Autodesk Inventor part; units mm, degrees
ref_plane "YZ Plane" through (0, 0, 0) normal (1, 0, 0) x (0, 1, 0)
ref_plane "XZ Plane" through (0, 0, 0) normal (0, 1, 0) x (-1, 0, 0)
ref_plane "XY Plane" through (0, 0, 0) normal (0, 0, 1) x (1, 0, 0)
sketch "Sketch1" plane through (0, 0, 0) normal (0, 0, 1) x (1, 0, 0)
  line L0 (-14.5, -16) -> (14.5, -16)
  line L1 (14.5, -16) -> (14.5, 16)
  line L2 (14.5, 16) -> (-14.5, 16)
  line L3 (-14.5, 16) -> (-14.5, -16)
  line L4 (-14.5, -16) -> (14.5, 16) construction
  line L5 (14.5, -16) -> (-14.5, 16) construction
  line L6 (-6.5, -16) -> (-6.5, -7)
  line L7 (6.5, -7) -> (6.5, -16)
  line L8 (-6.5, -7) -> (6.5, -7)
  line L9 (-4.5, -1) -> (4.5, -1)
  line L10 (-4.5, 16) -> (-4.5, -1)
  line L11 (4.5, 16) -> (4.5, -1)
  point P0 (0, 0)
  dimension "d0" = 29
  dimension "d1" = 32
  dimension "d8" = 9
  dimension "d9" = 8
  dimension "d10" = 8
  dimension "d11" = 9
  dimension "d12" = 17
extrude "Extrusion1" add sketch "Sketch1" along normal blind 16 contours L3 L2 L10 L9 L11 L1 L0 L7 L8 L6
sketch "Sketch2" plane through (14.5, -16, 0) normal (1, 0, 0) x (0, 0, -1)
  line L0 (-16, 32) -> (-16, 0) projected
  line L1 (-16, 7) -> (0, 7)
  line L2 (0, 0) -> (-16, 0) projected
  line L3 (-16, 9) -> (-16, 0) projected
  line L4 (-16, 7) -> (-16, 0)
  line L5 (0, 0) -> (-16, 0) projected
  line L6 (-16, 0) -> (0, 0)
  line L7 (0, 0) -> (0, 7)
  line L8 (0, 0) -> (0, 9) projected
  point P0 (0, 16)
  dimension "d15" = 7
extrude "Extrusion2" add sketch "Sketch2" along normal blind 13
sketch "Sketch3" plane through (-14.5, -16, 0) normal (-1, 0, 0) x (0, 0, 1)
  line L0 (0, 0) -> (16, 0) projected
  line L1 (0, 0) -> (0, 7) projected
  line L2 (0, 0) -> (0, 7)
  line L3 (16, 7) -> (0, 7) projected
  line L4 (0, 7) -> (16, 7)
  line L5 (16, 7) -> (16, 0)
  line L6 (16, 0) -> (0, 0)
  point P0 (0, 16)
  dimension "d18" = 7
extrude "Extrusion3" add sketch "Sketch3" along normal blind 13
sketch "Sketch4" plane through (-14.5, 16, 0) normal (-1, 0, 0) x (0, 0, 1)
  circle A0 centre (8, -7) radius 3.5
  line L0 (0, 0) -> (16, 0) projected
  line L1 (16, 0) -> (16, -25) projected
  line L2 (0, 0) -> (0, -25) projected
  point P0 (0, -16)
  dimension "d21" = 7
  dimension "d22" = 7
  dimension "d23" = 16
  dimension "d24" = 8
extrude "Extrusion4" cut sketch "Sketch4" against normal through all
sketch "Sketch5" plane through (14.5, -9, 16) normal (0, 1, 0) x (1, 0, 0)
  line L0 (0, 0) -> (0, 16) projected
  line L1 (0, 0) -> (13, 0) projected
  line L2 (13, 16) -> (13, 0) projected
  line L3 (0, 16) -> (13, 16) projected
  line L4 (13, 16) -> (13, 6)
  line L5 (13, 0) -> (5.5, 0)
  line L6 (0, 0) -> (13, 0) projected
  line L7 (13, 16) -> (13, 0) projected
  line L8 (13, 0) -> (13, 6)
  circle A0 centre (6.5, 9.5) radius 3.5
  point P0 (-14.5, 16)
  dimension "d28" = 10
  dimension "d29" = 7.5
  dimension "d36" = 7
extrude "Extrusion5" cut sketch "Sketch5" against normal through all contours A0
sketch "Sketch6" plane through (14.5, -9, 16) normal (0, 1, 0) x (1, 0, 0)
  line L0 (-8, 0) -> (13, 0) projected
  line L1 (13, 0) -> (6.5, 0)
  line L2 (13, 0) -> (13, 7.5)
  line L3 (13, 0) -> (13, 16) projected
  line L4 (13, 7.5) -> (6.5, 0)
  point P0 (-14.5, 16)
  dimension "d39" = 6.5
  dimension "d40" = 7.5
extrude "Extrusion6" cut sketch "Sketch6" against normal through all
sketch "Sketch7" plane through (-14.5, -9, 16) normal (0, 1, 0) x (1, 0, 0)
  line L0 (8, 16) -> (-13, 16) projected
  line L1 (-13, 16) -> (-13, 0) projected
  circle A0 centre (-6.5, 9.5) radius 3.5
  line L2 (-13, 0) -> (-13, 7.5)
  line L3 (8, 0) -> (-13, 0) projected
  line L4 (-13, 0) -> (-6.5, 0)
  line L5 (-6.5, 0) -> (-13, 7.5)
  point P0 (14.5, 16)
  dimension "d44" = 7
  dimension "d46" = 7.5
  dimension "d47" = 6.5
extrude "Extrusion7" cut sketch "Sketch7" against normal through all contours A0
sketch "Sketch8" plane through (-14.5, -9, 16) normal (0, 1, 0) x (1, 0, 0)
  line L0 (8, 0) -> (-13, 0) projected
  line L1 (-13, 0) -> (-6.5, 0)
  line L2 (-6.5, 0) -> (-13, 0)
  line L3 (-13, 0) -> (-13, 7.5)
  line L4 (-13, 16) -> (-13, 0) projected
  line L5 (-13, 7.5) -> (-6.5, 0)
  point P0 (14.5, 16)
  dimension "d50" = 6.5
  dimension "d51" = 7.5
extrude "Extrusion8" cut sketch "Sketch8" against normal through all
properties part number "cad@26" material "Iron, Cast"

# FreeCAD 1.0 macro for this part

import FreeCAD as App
import Part
import Sketcher
Q = App.Units.Quantity


def add_polygon(sketch, points):
    """Adds a closed chain of lines whose ends are joined by coincident constraints."""
    first, n = sketch.GeometryCount, len(points)
    for a, b in zip(points, points[1:] + points[:1]):
        sketch.addGeometry(Part.LineSegment(App.Vector(*a, 0), App.Vector(*b, 0)), False)
    for i in range(n):
        sketch.addConstraint(Sketcher.Constraint("Coincident", first + i, 2, first + (i + 1) % n, 1))

doc = App.newDocument("Part")
body = doc.addObject("PartDesign::Body", "Body")

# Sketch on XY plane
sketch1 = body.newObject("Sketcher::SketchObject", "Sketch")
sketch1.AttachmentSupport = (doc.getObject("XY_Plane"), [""])
sketch1.MapMode = "FlatFace"
add_polygon(sketch1, [(-14, 16), (-14, -16), (-6, -16), (-6, -7), (6, -7), (6, -16), (14, -16), (14, 16), (4, 16), (4, -1), (-4, -1), (-4, 16)])  # lines 0-11
sketch1.addConstraint(Sketcher.Constraint("Vertical", 0))
sketch1.addConstraint(Sketcher.Constraint("Horizontal", 1))
sketch1.addConstraint(Sketcher.Constraint("Vertical", 2))
sketch1.addConstraint(Sketcher.Constraint("Horizontal", 3))
sketch1.addConstraint(Sketcher.Constraint("Vertical", 4))
sketch1.addConstraint(Sketcher.Constraint("Horizontal", 5))
sketch1.addConstraint(Sketcher.Constraint("Vertical", 6))
sketch1.addConstraint(Sketcher.Constraint("Horizontal", 7))
sketch1.addConstraint(Sketcher.Constraint("Vertical", 8))
sketch1.addConstraint(Sketcher.Constraint("Horizontal", 9))
sketch1.addConstraint(Sketcher.Constraint("Vertical", 10))
sketch1.addConstraint(Sketcher.Constraint("Horizontal", 11))
sketch1.addConstraint(Sketcher.Constraint("Symmetric", 0, 2, 6, 2, -1, 1))
sketch1.addConstraint(Sketcher.Constraint("Symmetric", 1, 2, 4, 2, -2))
sketch1.addConstraint(Sketcher.Constraint("Symmetric", 7, 2, 10, 2, -2))
sketch1.addConstraint(Sketcher.Constraint("Equal", 9, 2))
sketch1.addConstraint(Sketcher.Constraint("DistanceX", 1, 1, 1, 2, Q("8 mm")))
sketch1.addConstraint(Sketcher.Constraint("DistanceX", 9, 2, 9, 1, Q("9 mm")))
sketch1.addConstraint(Sketcher.Constraint("DistanceY", 0, 2, 0, 1, Q("32 mm")))
sketch1.addConstraint(Sketcher.Constraint("DistanceY", 8, 2, 8, 1, Q("17 mm")))
sketch1.addConstraint(Sketcher.Constraint("DistanceX", 0, 2, 5, 2, Q("29 mm")))
pad1 = body.newObject("PartDesign::Pad", "Pad")
pad1.Profile = sketch1
pad1.Length = 16

# Sketch on YZ plane
sketch2 = body.newObject("Sketcher::SketchObject", "Sketch001")
sketch2.AttachmentSupport = (doc.getObject("YZ_Plane"), [""])
sketch2.MapMode = "FlatFace"
sketch2.AttachmentOffset = App.Placement(App.Vector(0, 0, 14.5), App.Rotation())
add_polygon(sketch2, [(-9, 0), (-9, 16), (-16, 16), (-16, 0)])  # lines 0-3
sketch2.addConstraint(Sketcher.Constraint("Vertical", 0))
sketch2.addConstraint(Sketcher.Constraint("Horizontal", 1))
sketch2.addConstraint(Sketcher.Constraint("Vertical", 2))
sketch2.addConstraint(Sketcher.Constraint("Horizontal", 3))
sketch2.addConstraint(Sketcher.Constraint("PointOnObject", 2, 2, -1))
sketch2.addConstraint(Sketcher.Constraint("DistanceX", 1, 2, 1, 1, Q("7 mm")))
sketch2.addConstraint(Sketcher.Constraint("DistanceY", 0, 1, 0, 2, Q("16 mm")))
sketch2.addConstraint(Sketcher.Constraint("DistanceX", 0, 2, -1, 1, Q("9 mm")))
pad2 = body.newObject("PartDesign::Pad", "Pad001")
pad2.Profile = sketch2
pad2.Length = 13

# Sketch on YZ plane
sketch3 = body.newObject("Sketcher::SketchObject", "Sketch002")
sketch3.AttachmentSupport = (doc.getObject("YZ_Plane"), [""])
sketch3.MapMode = "FlatFace"
sketch3.AttachmentOffset = App.Placement(App.Vector(0, 0, -14.5), App.Rotation())
add_polygon(sketch3, [(-9, 0), (-16, 0), (-16, 16), (-9, 16)])  # lines 0-3
sketch3.addConstraint(Sketcher.Constraint("Horizontal", 0))
sketch3.addConstraint(Sketcher.Constraint("Vertical", 1))
sketch3.addConstraint(Sketcher.Constraint("Horizontal", 2))
sketch3.addConstraint(Sketcher.Constraint("Vertical", 3))
sketch3.addConstraint(Sketcher.Constraint("PointOnObject", 0, 2, -1))
sketch3.addConstraint(Sketcher.Constraint("DistanceX", 0, 2, 0, 1, Q("7 mm")))
sketch3.addConstraint(Sketcher.Constraint("DistanceY", 1, 1, 1, 2, Q("16 mm")))
sketch3.addConstraint(Sketcher.Constraint("DistanceX", 0, 2, -1, 1, Q("16 mm")))
pad3 = body.newObject("PartDesign::Pad", "Pad002")
pad3.Profile = sketch3
pad3.Length = 13
pad3.Reversed = True

# Sketch on YZ plane
sketch4 = body.newObject("Sketcher::SketchObject", "Sketch003")
sketch4.AttachmentSupport = (doc.getObject("YZ_Plane"), [""])
sketch4.MapMode = "FlatFace"
sketch4.AttachmentOffset = App.Placement(App.Vector(0, 0, -14.5), App.Rotation())
sketch4.addGeometry(Part.Circle(App.Vector(9, 8, 0), App.Vector(0, 0, 1), 3.5), False)
sketch4.addConstraint(Sketcher.Constraint("Diameter", 0, Q("7 mm")))
sketch4.addConstraint(Sketcher.Constraint("DistanceY", -1, 1, 0, 3, Q("8 mm")))
sketch4.addConstraint(Sketcher.Constraint("DistanceX", -1, 1, 0, 3, Q("9 mm")))
pocket1 = body.newObject("PartDesign::Pocket", "Pocket")
pocket1.Profile = sketch4
pocket1.Type = "ThroughAll"
pocket1.Reversed = True

# Sketch on XZ plane
sketch5 = body.newObject("Sketcher::SketchObject", "Sketch004")
sketch5.AttachmentSupport = (doc.getObject("XZ_Plane"), [""])
sketch5.MapMode = "FlatFace"
sketch5.AttachmentOffset = App.Placement(App.Vector(0, 0, 9), App.Rotation())
sketch5.addGeometry(Part.Circle(App.Vector(21, 6.5, 0), App.Vector(0, 0, 1), 3.5), False)
sketch5.addConstraint(Sketcher.Constraint("Diameter", 0, Q("7 mm")))
sketch5.addConstraint(Sketcher.Constraint("DistanceX", -1, 1, 0, 3, Q("21 mm")))
sketch5.addConstraint(Sketcher.Constraint("DistanceY", -1, 1, 0, 3, Q("6.5 mm")))
pocket2 = body.newObject("PartDesign::Pocket", "Pocket001")
pocket2.Profile = sketch5
pocket2.Type = "ThroughAll"
pocket2.Reversed = True

# Sketch on XZ plane
sketch6 = body.newObject("Sketcher::SketchObject", "Sketch005")
sketch6.AttachmentSupport = (doc.getObject("XZ_Plane"), [""])
sketch6.MapMode = "FlatFace"
sketch6.AttachmentOffset = App.Placement(App.Vector(0, 0, 9), App.Rotation())
add_polygon(sketch6, [(28, 8), (21, 16), (28, 16)])  # lines 0-2
sketch6.addConstraint(Sketcher.Constraint("Horizontal", 1))
sketch6.addConstraint(Sketcher.Constraint("Vertical", 2))
sketch6.addConstraint(Sketcher.Constraint("DistanceX", 1, 1, 1, 2, Q("6.5 mm")))
sketch6.addConstraint(Sketcher.Constraint("DistanceY", 2, 2, 2, 1, Q("7.5 mm")))
sketch6.addConstraint(Sketcher.Constraint("DistanceX", -1, 1, 0, 2, Q("21 mm")))
sketch6.addConstraint(Sketcher.Constraint("DistanceY", -1, 1, 0, 2, Q("16 mm")))
pocket3 = body.newObject("PartDesign::Pocket", "Pocket002")
pocket3.Profile = sketch6
pocket3.Type = "ThroughAll"
pocket3.Reversed = True

# Sketch on XZ plane
sketch7 = body.newObject("Sketcher::SketchObject", "Sketch006")
sketch7.AttachmentSupport = (doc.getObject("XZ_Plane"), [""])
sketch7.MapMode = "FlatFace"
sketch7.AttachmentOffset = App.Placement(App.Vector(0, 0, 9), App.Rotation())
sketch7.addGeometry(Part.Circle(App.Vector(-21, 6.5, 0), App.Vector(0, 0, 1), 3.5), False)
sketch7.addConstraint(Sketcher.Constraint("Diameter", 0, Q("7 mm")))
sketch7.addConstraint(Sketcher.Constraint("DistanceY", -1, 1, 0, 3, Q("6.5 mm")))
sketch7.addConstraint(Sketcher.Constraint("DistanceX", 0, 3, -1, 1, Q("21 mm")))
pocket4 = body.newObject("PartDesign::Pocket", "Pocket003")
pocket4.Profile = sketch7
pocket4.Type = "ThroughAll"
pocket4.Reversed = True

# Sketch on XZ plane
sketch8 = body.newObject("Sketcher::SketchObject", "Sketch007")
sketch8.AttachmentSupport = (doc.getObject("XZ_Plane"), [""])
sketch8.MapMode = "FlatFace"
sketch8.AttachmentOffset = App.Placement(App.Vector(0, 0, 9), App.Rotation())
add_polygon(sketch8, [(-28, 16), (-21, 16), (-28, 8)])  # lines 0-2
sketch8.addConstraint(Sketcher.Constraint("Horizontal", 0))
sketch8.addConstraint(Sketcher.Constraint("Vertical", 2))
sketch8.addConstraint(Sketcher.Constraint("DistanceX", 0, 1, 0, 2, Q("6.5 mm")))
sketch8.addConstraint(Sketcher.Constraint("DistanceY", 2, 1, 2, 2, Q("7.5 mm")))
sketch8.addConstraint(Sketcher.Constraint("DistanceX", 0, 2, -1, 1, Q("21 mm")))
sketch8.addConstraint(Sketcher.Constraint("DistanceY", -1, 1, 0, 2, Q("16 mm")))
pocket5 = body.newObject("PartDesign::Pocket", "Pocket004")
pocket5.Profile = sketch8
pocket5.Type = "ThroughAll"
pocket5.Reversed = True

doc.recompute()
